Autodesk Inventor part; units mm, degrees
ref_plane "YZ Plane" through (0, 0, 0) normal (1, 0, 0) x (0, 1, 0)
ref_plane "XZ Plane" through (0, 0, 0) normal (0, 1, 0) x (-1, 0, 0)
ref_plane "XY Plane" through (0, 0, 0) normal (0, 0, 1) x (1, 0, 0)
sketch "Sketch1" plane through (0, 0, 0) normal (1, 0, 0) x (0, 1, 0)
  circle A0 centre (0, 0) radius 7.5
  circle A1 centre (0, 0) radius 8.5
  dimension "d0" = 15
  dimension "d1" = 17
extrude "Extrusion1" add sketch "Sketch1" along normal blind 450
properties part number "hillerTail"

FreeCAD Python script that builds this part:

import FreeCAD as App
import Part
import Sketcher
from FreeCAD import Vector

doc = App.newDocument("Part")
body = doc.addObject("PartDesign::Body", "Body")

sketch1 = body.newObject("Sketcher::SketchObject", "Sketch")
sketch1.AttachmentSupport = (doc.getObject("YZ_Plane"), [""])
sketch1.MapMode = "FlatFace"
sketch1.addGeometry([
    Part.Circle(Vector(0, 0, 0), Vector(0, 0, 1), 8),
    Part.Circle(Vector(0, 0, 0), Vector(0, 0, 1), 8),
], False)
sketch1.addConstraint([
    Sketcher.Constraint("Coincident", 0, 3, -1, 1),
    Sketcher.Constraint("Coincident", 1, 3, -1, 1),
    Sketcher.Constraint("Diameter", 0, 17.0),
    Sketcher.Constraint("Diameter", 1, 15.0),
])
pad1 = body.newObject("PartDesign::Pad", "Pad")
pad1.Profile = sketch1
pad1.Length = 450

doc.recompute()
